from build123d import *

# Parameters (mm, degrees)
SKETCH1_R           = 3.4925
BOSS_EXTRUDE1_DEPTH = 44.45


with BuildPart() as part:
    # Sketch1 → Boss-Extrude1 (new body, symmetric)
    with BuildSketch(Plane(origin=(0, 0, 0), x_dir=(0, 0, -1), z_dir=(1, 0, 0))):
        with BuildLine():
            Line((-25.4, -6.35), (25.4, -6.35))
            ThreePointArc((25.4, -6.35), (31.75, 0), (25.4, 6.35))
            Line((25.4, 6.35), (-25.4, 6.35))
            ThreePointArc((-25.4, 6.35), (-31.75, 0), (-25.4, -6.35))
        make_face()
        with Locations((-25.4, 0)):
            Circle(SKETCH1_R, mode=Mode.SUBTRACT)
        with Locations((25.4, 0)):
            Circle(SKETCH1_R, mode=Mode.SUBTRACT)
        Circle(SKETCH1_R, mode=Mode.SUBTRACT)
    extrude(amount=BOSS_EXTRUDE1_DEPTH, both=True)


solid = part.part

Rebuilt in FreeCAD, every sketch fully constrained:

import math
import FreeCAD as App
import Part
import Sketcher

V = App.Vector
Q = App.Units.Quantity

doc = App.newDocument("Part")
params = doc.addObject("Spreadsheet::Sheet", "Params")
for row, (alias, value) in enumerate([
    ("sketch1_height", "2 in"),
    ("sketch1_radius", "0.25 in"),
    ("sketch1_diameter", "0.275 in"),
    ("pad1_length", "3.5 in"),
], start=1):
    params.set(f"A{row}", alias)
    params.set(f"B{row}", "=" + value)
    params.setAlias(f"B{row}", alias)

body = doc.addObject("PartDesign::Body", "Body")

sketch1 = doc.addObject("Sketcher::SketchObject", "Sketch")
body.addObject(sketch1)
sketch1.AttachmentSupport = (doc.YZ_Plane, [""])
sketch1.MapMode = "FlatFace"
sketch1.addGeometry([
    Part.LineSegment(V(-6.3, 25.4, 0), V(-6.3, -25.4, 0)),
    Part.ArcOfCircle(Part.Circle(V(0, -25.4, 0), V(0, 0, 1), 6.3), math.radians(180), math.radians(360)),
    Part.LineSegment(V(6.3, -25.4, 0), V(6.3, 25.4, 0)),
    Part.ArcOfCircle(Part.Circle(V(0, 25.4, 0), V(0, 0, 1), 6.3), math.radians(0), math.radians(180)),
    Part.Circle(V(0, 25.4, 0), V(0, 0, 1), 3.5),
    Part.Circle(V(0, 0, 0), V(0, 0, 1), 3.5),
    Part.Circle(V(0, -25.4, 0), V(0, 0, 1), 3.5),
], False)
sketch1.addConstraint([
    Sketcher.Constraint("Tangent", 0, 2, 1, 1),
    Sketcher.Constraint("Tangent", 1, 2, 2, 1),
    Sketcher.Constraint("Tangent", 2, 2, 3, 1),
    Sketcher.Constraint("Tangent", 3, 2, 0, 1),
    Sketcher.Constraint("Vertical", 0),
    Sketcher.Constraint("Vertical", 2),
    Sketcher.Constraint("Coincident", 5, 3, -1, 1),
    Sketcher.Constraint("Coincident", 4, 3, 3, 3),
    Sketcher.Constraint("Coincident", 6, 3, 1, 3),
    Sketcher.Constraint("Equal", 4, 5),
    Sketcher.Constraint("Equal", 5, 6),
    Sketcher.Constraint("Symmetric", 1, 3, 3, 3, -1, 1),
    Sketcher.Constraint("DistanceY", 0, 2, 0, 1, Q("2 in")),
    Sketcher.Constraint("Radius", 1, Q("0.25 in")),
    Sketcher.Constraint("Diameter", 4, Q("0.275 in")),
])
sketch1.setExpression("Constraints[12]", "Params.sketch1_height")
sketch1.setExpression("Constraints[13]", "Params.sketch1_radius")
sketch1.setExpression("Constraints[14]", "Params.sketch1_diameter")
pad1 = doc.addObject("PartDesign::Pad", "Pad")
body.addObject(pad1)
pad1.Profile = sketch1
pad1.setExpression("Length", "Params.pad1_length")
pad1.Midplane = True

doc.recompute()
